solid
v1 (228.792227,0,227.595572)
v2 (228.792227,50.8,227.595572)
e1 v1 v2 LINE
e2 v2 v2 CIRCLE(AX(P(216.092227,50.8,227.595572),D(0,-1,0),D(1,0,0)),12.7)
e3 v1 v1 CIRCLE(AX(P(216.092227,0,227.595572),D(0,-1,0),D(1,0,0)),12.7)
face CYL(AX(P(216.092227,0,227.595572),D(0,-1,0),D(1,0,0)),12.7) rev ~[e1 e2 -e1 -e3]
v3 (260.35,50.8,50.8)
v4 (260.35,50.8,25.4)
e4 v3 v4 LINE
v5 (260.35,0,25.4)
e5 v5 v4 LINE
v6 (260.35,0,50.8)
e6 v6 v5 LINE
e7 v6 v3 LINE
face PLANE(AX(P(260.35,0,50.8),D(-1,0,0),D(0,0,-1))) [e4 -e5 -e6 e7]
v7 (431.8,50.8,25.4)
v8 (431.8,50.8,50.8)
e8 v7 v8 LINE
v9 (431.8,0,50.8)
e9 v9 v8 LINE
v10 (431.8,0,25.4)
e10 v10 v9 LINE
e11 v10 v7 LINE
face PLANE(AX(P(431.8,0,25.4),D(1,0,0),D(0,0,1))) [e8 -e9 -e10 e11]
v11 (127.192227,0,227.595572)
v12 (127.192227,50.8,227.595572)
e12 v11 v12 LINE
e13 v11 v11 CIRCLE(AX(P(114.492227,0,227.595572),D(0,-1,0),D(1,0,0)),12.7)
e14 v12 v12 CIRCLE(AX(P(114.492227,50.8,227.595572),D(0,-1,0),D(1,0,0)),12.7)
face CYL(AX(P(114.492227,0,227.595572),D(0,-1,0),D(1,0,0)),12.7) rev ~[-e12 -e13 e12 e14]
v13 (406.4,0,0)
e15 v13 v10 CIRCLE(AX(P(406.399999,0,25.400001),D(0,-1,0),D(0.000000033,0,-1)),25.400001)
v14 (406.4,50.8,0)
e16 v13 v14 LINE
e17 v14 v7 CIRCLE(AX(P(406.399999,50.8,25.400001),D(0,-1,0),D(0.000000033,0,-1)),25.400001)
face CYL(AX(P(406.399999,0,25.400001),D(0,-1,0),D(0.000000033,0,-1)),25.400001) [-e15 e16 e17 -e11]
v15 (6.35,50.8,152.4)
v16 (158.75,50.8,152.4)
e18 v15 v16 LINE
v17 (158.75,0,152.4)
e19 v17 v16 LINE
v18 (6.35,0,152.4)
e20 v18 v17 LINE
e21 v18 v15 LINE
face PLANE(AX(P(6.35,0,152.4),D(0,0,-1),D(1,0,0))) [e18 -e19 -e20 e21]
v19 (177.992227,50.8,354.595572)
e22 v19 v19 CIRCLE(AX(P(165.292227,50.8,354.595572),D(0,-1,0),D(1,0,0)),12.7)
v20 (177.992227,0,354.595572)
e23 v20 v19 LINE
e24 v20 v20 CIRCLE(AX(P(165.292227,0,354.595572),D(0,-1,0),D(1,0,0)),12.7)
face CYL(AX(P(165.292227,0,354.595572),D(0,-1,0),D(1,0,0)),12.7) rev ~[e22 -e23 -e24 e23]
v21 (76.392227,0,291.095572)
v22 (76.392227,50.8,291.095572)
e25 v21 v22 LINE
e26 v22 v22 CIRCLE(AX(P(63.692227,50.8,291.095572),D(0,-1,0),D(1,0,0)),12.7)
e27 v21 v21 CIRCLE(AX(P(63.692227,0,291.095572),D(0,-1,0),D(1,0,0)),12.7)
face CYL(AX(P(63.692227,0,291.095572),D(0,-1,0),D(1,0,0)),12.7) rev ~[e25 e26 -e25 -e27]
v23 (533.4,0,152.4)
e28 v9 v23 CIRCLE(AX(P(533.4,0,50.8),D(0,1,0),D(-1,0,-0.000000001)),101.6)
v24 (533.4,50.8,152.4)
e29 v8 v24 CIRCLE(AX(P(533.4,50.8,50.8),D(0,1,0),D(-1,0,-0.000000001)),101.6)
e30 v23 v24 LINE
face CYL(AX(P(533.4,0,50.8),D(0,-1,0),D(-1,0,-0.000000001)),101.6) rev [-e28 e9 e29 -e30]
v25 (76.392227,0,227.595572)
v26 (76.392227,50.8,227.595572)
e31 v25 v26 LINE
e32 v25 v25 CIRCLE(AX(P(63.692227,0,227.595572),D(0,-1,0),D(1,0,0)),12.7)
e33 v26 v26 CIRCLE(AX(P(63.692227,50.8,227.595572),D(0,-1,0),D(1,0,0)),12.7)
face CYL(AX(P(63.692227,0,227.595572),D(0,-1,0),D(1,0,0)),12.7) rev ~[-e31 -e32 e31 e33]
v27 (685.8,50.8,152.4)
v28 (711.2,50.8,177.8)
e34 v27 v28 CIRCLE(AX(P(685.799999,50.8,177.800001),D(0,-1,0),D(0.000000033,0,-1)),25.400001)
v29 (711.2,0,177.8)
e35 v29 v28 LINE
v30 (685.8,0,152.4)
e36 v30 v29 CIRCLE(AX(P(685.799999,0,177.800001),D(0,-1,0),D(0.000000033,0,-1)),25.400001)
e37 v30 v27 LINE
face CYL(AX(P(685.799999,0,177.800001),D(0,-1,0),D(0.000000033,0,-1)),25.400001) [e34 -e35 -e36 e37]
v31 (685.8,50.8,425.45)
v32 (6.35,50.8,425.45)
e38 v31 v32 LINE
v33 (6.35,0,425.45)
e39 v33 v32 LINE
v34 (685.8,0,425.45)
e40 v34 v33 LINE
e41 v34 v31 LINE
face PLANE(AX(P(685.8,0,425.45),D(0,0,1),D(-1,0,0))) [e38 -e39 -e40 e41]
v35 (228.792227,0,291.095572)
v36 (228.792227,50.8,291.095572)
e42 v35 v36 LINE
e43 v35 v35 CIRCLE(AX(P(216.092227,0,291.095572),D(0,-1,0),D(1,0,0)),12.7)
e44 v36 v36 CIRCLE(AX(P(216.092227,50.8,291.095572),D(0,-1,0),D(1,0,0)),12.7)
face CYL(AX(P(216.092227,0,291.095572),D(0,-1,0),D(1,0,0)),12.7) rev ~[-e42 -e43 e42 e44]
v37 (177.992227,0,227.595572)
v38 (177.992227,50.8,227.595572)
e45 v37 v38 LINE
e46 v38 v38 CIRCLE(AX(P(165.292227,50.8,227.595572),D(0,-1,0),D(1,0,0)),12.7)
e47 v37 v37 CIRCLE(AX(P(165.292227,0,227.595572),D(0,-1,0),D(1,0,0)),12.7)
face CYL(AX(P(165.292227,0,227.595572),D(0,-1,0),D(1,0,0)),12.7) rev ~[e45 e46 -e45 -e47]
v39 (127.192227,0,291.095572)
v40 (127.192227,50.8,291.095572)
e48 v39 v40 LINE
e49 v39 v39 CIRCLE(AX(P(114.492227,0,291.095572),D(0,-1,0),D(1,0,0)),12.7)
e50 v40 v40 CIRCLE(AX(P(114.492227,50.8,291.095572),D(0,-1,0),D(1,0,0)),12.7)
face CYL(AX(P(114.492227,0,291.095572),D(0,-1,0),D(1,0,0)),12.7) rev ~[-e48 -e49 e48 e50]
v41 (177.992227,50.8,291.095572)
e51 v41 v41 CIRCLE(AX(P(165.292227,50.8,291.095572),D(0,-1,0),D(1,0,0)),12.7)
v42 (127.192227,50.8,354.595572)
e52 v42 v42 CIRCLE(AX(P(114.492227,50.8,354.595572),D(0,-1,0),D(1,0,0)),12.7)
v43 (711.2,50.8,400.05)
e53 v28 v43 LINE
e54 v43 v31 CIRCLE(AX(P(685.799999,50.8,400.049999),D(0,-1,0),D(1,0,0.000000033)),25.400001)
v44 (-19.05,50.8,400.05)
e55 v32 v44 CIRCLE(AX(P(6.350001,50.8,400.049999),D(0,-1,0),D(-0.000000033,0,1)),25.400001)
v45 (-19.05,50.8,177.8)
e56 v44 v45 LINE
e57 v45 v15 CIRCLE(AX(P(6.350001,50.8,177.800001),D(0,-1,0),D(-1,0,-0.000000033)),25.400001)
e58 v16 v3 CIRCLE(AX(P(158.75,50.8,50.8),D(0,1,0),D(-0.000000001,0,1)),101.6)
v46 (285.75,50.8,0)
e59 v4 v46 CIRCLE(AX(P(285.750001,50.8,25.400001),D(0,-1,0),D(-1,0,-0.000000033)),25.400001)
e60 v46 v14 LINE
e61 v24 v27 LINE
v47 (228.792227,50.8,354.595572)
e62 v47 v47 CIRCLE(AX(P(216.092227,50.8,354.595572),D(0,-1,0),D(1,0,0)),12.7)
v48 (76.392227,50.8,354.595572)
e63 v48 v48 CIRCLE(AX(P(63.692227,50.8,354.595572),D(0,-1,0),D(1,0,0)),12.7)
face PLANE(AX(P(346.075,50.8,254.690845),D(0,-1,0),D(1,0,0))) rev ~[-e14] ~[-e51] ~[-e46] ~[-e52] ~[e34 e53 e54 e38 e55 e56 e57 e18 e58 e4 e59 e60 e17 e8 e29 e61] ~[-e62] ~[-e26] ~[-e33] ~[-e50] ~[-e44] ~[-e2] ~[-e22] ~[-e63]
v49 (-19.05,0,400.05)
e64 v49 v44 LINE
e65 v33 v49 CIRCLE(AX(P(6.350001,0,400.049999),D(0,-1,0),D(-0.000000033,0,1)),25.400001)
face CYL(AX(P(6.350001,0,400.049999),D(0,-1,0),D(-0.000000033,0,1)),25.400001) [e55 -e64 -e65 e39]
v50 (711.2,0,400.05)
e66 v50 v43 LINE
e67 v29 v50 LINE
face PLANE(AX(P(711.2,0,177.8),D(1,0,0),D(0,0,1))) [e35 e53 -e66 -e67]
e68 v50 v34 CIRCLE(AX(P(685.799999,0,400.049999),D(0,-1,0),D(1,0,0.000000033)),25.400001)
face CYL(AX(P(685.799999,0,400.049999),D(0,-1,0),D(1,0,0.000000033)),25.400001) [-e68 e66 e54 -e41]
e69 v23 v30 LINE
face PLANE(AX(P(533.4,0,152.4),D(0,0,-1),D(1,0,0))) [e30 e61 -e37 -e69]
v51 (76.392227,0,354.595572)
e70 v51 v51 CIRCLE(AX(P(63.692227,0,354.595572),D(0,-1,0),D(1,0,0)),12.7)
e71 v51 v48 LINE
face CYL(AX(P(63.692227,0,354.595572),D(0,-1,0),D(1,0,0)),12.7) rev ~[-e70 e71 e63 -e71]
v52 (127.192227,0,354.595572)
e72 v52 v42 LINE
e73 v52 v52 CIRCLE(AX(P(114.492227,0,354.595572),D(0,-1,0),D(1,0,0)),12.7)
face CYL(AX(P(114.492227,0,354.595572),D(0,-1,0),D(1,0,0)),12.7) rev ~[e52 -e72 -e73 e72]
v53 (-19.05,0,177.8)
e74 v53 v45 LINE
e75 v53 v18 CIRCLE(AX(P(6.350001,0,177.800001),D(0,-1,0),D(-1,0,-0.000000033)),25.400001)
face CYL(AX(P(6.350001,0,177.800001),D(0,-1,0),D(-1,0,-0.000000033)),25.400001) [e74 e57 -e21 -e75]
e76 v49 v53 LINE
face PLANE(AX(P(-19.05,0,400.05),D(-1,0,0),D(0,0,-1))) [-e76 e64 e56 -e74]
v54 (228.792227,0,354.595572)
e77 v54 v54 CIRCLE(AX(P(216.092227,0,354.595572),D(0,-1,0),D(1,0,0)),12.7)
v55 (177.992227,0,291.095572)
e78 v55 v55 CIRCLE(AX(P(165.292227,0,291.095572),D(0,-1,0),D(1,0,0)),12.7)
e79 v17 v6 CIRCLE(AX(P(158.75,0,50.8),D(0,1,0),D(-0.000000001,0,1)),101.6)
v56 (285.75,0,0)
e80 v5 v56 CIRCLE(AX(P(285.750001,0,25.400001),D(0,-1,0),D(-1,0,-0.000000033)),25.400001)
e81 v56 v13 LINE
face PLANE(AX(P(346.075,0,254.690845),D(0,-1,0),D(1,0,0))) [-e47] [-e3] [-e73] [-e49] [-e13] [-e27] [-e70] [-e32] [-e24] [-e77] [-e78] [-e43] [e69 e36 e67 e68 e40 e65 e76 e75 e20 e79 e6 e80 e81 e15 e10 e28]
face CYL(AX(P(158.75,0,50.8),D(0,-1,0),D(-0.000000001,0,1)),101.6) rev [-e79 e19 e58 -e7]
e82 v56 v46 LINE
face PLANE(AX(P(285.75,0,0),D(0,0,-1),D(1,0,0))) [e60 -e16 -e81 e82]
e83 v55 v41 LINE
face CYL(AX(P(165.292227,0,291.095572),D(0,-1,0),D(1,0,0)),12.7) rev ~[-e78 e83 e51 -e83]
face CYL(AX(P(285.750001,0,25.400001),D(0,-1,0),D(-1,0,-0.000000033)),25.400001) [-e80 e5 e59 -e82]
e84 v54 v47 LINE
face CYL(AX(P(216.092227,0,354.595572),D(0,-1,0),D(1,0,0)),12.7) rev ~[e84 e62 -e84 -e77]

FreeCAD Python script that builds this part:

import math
import FreeCAD as App
import Part
import Sketcher
from FreeCAD import Vector
Q = App.Units.Quantity

doc = App.newDocument("Part")
body = doc.addObject("PartDesign::Body", "Body")

sketch1 = doc.addObject("Sketcher::SketchObject", "Sketch")
body.addObject(sketch1)
sketch1.AttachmentSupport = (doc.XZ_Plane, [""])
sketch1.MapMode = "FlatFace"
sketch1.addGeometry([
    Part.ArcOfCircle(Part.Circle(Vector(286, 25, 0), Vector(0, 0, 1), 25), math.radians(-180), math.radians(-90)),
    Part.LineSegment(Vector(286, 0, 0), Vector(406, 0, 0)),
    Part.ArcOfCircle(Part.Circle(Vector(406, 25, 0), Vector(0, 0, 1), 25), math.radians(-90), math.radians(0)),
    Part.LineSegment(Vector(432, 25, 0), Vector(432, 51, 0)),
    Part.ArcOfCircle(Part.Circle(Vector(533, 51, 0), Vector(0, 0, 1), 102), math.radians(90), math.radians(180)),
    Part.LineSegment(Vector(533, 152, 0), Vector(686, 152, 0)),
    Part.ArcOfCircle(Part.Circle(Vector(686, 178, 0), Vector(0, 0, 1), 25), math.radians(-90), math.radians(0)),
    Part.LineSegment(Vector(711, 178, 0), Vector(711, 400, 0)),
    Part.ArcOfCircle(Part.Circle(Vector(686, 400, 0), Vector(0, 0, 1), 25), math.radians(0), math.radians(90)),
    Part.LineSegment(Vector(686, 425, 0), Vector(6, 425, 0)),
    Part.ArcOfCircle(Part.Circle(Vector(6, 400, 0), Vector(0, 0, 1), 25), math.radians(90), math.radians(180)),
    Part.LineSegment(Vector(-19, 400, 0), Vector(-19, 178, 0)),
    Part.ArcOfCircle(Part.Circle(Vector(6, 178, 0), Vector(0, 0, 1), 25), math.radians(-180), math.radians(-90)),
    Part.LineSegment(Vector(6, 152, 0), Vector(159, 152, 0)),
    Part.ArcOfCircle(Part.Circle(Vector(159, 51, 0), Vector(0, 0, 1), 102), math.radians(0), math.radians(90)),
    Part.LineSegment(Vector(260, 51, 0), Vector(260, 25, 0)),
    Part.Circle(Vector(64, 228, 0), Vector(0, 0, 1), 13),
    Part.Circle(Vector(114, 228, 0), Vector(0, 0, 1), 13),
    Part.Circle(Vector(165, 228, 0), Vector(0, 0, 1), 13),
    Part.Circle(Vector(216, 228, 0), Vector(0, 0, 1), 13),
    Part.Circle(Vector(64, 291, 0), Vector(0, 0, 1), 13),
    Part.Circle(Vector(114, 291, 0), Vector(0, 0, 1), 13),
    Part.Circle(Vector(64, 355, 0), Vector(0, 0, 1), 13),
    Part.Circle(Vector(114, 355, 0), Vector(0, 0, 1), 13),
    Part.Circle(Vector(165, 291, 0), Vector(0, 0, 1), 13),
    Part.Circle(Vector(216, 291, 0), Vector(0, 0, 1), 13),
    Part.Circle(Vector(165, 355, 0), Vector(0, 0, 1), 13),
    Part.Circle(Vector(216, 355, 0), Vector(0, 0, 1), 13),
], False)
sketch1.addConstraint([
    Sketcher.Constraint("Tangent", 0, 2, 1, 1),
    Sketcher.Constraint("Tangent", 1, 2, 2, 1),
    Sketcher.Constraint("Tangent", 2, 2, 3, 1),
    Sketcher.Constraint("Tangent", 3, 2, 4, 2),
    Sketcher.Constraint("Tangent", 4, 1, 5, 1),
    Sketcher.Constraint("Tangent", 5, 2, 6, 1),
    Sketcher.Constraint("Tangent", 6, 2, 7, 1),
    Sketcher.Constraint("Tangent", 7, 2, 8, 1),
    Sketcher.Constraint("Tangent", 8, 2, 9, 1),
    Sketcher.Constraint("Tangent", 9, 2, 10, 1),
    Sketcher.Constraint("Tangent", 10, 2, 11, 1),
    Sketcher.Constraint("Tangent", 11, 2, 12, 1),
    Sketcher.Constraint("Tangent", 12, 2, 13, 1),
    Sketcher.Constraint("Tangent", 13, 2, 14, 2),
    Sketcher.Constraint("Tangent", 14, 1, 15, 1),
    Sketcher.Constraint("Tangent", 15, 2, 0, 1),
    Sketcher.Constraint("Horizontal", 1),
    Sketcher.Constraint("Vertical", 3),
    Sketcher.Constraint("Horizontal", 5),
    Sketcher.Constraint("Vertical", 7),
    Sketcher.Constraint("Horizontal", 9),
    Sketcher.Constraint("Vertical", 11),
    Sketcher.Constraint("Horizontal", 13),
    Sketcher.Constraint("Vertical", 15),
    Sketcher.Constraint("Equal", 0, 2),
    Sketcher.Constraint("Equal", 2, 6),
    Sketcher.Constraint("Equal", 6, 8),
    Sketcher.Constraint("Equal", 8, 10),
    Sketcher.Constraint("Equal", 10, 12),
    Sketcher.Constraint("Equal", 4, 14),
    Sketcher.Constraint("Equal", 16, 17),
    Sketcher.Constraint("Equal", 17, 18),
    Sketcher.Constraint("Equal", 18, 19),
    Sketcher.Constraint("Equal", 19, 20),
    Sketcher.Constraint("Equal", 20, 21),
    Sketcher.Constraint("Equal", 21, 22),
    Sketcher.Constraint("Equal", 22, 23),
    Sketcher.Constraint("Equal", 23, 24),
    Sketcher.Constraint("Equal", 24, 25),
    Sketcher.Constraint("Equal", 25, 26),
    Sketcher.Constraint("Equal", 26, 27),
    Sketcher.Constraint("PointOnObject", 0, 2, -1),
    Sketcher.Constraint("Horizontal", 6, 3, 12, 3),
    Sketcher.Constraint("Horizontal", 16, 3, 17, 3),
    Sketcher.Constraint("Horizontal", 17, 3, 18, 3),
    Sketcher.Constraint("Horizontal", 18, 3, 19, 3),
    Sketcher.Constraint("Horizontal", 20, 3, 21, 3),
    Sketcher.Constraint("Horizontal", 22, 3, 23, 3),
    Sketcher.Constraint("Horizontal", 21, 3, 24, 3),
    Sketcher.Constraint("Horizontal", 24, 3, 25, 3),
    Sketcher.Constraint("Horizontal", 23, 3, 26, 3),
    Sketcher.Constraint("Horizontal", 26, 3, 27, 3),
    Sketcher.Constraint("Vertical", 16, 3, 20, 3),
    Sketcher.Constraint("Vertical", 17, 3, 21, 3),
    Sketcher.Constraint("Vertical", 20, 3, 22, 3),
    Sketcher.Constraint("Vertical", 21, 3, 23, 3),
    Sketcher.Constraint("Vertical", 18, 3, 24, 3),
    Sketcher.Constraint("Vertical", 19, 3, 25, 3),
    Sketcher.Constraint("Vertical", 24, 3, 26, 3),
    Sketcher.Constraint("Vertical", 25, 3, 27, 3),
    Sketcher.Constraint("Equal", 5, 13),
    Sketcher.Constraint("Diameter", 16, Q("1 in")),
    Sketcher.Constraint("Radius", 0, Q("1 in")),
    Sketcher.Constraint("Radius", 4, Q("4 in")),
    Sketcher.Constraint("DistanceX", 5, 1, 5, 2, Q("6 in")),
    Sketcher.Constraint("DistanceY", 3, 1, 3, 2, Q("1 in")),
    Sketcher.Constraint("DistanceX", -1, 1, 2, 3, Q("16 in")),
    Sketcher.Constraint("DistanceX", 16, 3, 17, 3, Q("2 in")),
    Sketcher.Constraint("DistanceX", 17, 3, 18, 3, Q("2 in")),
    Sketcher.Constraint("DistanceX", 18, 3, 19, 3, Q("2 in")),
    Sketcher.Constraint("DistanceY", 16, 3, 22, 3, Q("5 in")),
    Sketcher.Constraint("DistanceX", 1, 1, 1, 2, Q("4.75 in")),
    Sketcher.Constraint("DistanceY", 7, 1, 7, 2, Q("8.75 in")),
    Sketcher.Constraint("DistanceY", 16, 3, 20, 3, Q("2.5 in")),
    Sketcher.Constraint("DistanceY", -1, 1, 16, 3, 227.595572),
    Sketcher.Constraint("DistanceX", -1, 1, 16, 3, 63.692227),
])
pad1 = doc.addObject("PartDesign::Pad", "Pad")
body.addObject(pad1)
pad1.Profile = sketch1
pad1.Length = Q("2 in")
pad1.Reversed = True

doc.recompute()
